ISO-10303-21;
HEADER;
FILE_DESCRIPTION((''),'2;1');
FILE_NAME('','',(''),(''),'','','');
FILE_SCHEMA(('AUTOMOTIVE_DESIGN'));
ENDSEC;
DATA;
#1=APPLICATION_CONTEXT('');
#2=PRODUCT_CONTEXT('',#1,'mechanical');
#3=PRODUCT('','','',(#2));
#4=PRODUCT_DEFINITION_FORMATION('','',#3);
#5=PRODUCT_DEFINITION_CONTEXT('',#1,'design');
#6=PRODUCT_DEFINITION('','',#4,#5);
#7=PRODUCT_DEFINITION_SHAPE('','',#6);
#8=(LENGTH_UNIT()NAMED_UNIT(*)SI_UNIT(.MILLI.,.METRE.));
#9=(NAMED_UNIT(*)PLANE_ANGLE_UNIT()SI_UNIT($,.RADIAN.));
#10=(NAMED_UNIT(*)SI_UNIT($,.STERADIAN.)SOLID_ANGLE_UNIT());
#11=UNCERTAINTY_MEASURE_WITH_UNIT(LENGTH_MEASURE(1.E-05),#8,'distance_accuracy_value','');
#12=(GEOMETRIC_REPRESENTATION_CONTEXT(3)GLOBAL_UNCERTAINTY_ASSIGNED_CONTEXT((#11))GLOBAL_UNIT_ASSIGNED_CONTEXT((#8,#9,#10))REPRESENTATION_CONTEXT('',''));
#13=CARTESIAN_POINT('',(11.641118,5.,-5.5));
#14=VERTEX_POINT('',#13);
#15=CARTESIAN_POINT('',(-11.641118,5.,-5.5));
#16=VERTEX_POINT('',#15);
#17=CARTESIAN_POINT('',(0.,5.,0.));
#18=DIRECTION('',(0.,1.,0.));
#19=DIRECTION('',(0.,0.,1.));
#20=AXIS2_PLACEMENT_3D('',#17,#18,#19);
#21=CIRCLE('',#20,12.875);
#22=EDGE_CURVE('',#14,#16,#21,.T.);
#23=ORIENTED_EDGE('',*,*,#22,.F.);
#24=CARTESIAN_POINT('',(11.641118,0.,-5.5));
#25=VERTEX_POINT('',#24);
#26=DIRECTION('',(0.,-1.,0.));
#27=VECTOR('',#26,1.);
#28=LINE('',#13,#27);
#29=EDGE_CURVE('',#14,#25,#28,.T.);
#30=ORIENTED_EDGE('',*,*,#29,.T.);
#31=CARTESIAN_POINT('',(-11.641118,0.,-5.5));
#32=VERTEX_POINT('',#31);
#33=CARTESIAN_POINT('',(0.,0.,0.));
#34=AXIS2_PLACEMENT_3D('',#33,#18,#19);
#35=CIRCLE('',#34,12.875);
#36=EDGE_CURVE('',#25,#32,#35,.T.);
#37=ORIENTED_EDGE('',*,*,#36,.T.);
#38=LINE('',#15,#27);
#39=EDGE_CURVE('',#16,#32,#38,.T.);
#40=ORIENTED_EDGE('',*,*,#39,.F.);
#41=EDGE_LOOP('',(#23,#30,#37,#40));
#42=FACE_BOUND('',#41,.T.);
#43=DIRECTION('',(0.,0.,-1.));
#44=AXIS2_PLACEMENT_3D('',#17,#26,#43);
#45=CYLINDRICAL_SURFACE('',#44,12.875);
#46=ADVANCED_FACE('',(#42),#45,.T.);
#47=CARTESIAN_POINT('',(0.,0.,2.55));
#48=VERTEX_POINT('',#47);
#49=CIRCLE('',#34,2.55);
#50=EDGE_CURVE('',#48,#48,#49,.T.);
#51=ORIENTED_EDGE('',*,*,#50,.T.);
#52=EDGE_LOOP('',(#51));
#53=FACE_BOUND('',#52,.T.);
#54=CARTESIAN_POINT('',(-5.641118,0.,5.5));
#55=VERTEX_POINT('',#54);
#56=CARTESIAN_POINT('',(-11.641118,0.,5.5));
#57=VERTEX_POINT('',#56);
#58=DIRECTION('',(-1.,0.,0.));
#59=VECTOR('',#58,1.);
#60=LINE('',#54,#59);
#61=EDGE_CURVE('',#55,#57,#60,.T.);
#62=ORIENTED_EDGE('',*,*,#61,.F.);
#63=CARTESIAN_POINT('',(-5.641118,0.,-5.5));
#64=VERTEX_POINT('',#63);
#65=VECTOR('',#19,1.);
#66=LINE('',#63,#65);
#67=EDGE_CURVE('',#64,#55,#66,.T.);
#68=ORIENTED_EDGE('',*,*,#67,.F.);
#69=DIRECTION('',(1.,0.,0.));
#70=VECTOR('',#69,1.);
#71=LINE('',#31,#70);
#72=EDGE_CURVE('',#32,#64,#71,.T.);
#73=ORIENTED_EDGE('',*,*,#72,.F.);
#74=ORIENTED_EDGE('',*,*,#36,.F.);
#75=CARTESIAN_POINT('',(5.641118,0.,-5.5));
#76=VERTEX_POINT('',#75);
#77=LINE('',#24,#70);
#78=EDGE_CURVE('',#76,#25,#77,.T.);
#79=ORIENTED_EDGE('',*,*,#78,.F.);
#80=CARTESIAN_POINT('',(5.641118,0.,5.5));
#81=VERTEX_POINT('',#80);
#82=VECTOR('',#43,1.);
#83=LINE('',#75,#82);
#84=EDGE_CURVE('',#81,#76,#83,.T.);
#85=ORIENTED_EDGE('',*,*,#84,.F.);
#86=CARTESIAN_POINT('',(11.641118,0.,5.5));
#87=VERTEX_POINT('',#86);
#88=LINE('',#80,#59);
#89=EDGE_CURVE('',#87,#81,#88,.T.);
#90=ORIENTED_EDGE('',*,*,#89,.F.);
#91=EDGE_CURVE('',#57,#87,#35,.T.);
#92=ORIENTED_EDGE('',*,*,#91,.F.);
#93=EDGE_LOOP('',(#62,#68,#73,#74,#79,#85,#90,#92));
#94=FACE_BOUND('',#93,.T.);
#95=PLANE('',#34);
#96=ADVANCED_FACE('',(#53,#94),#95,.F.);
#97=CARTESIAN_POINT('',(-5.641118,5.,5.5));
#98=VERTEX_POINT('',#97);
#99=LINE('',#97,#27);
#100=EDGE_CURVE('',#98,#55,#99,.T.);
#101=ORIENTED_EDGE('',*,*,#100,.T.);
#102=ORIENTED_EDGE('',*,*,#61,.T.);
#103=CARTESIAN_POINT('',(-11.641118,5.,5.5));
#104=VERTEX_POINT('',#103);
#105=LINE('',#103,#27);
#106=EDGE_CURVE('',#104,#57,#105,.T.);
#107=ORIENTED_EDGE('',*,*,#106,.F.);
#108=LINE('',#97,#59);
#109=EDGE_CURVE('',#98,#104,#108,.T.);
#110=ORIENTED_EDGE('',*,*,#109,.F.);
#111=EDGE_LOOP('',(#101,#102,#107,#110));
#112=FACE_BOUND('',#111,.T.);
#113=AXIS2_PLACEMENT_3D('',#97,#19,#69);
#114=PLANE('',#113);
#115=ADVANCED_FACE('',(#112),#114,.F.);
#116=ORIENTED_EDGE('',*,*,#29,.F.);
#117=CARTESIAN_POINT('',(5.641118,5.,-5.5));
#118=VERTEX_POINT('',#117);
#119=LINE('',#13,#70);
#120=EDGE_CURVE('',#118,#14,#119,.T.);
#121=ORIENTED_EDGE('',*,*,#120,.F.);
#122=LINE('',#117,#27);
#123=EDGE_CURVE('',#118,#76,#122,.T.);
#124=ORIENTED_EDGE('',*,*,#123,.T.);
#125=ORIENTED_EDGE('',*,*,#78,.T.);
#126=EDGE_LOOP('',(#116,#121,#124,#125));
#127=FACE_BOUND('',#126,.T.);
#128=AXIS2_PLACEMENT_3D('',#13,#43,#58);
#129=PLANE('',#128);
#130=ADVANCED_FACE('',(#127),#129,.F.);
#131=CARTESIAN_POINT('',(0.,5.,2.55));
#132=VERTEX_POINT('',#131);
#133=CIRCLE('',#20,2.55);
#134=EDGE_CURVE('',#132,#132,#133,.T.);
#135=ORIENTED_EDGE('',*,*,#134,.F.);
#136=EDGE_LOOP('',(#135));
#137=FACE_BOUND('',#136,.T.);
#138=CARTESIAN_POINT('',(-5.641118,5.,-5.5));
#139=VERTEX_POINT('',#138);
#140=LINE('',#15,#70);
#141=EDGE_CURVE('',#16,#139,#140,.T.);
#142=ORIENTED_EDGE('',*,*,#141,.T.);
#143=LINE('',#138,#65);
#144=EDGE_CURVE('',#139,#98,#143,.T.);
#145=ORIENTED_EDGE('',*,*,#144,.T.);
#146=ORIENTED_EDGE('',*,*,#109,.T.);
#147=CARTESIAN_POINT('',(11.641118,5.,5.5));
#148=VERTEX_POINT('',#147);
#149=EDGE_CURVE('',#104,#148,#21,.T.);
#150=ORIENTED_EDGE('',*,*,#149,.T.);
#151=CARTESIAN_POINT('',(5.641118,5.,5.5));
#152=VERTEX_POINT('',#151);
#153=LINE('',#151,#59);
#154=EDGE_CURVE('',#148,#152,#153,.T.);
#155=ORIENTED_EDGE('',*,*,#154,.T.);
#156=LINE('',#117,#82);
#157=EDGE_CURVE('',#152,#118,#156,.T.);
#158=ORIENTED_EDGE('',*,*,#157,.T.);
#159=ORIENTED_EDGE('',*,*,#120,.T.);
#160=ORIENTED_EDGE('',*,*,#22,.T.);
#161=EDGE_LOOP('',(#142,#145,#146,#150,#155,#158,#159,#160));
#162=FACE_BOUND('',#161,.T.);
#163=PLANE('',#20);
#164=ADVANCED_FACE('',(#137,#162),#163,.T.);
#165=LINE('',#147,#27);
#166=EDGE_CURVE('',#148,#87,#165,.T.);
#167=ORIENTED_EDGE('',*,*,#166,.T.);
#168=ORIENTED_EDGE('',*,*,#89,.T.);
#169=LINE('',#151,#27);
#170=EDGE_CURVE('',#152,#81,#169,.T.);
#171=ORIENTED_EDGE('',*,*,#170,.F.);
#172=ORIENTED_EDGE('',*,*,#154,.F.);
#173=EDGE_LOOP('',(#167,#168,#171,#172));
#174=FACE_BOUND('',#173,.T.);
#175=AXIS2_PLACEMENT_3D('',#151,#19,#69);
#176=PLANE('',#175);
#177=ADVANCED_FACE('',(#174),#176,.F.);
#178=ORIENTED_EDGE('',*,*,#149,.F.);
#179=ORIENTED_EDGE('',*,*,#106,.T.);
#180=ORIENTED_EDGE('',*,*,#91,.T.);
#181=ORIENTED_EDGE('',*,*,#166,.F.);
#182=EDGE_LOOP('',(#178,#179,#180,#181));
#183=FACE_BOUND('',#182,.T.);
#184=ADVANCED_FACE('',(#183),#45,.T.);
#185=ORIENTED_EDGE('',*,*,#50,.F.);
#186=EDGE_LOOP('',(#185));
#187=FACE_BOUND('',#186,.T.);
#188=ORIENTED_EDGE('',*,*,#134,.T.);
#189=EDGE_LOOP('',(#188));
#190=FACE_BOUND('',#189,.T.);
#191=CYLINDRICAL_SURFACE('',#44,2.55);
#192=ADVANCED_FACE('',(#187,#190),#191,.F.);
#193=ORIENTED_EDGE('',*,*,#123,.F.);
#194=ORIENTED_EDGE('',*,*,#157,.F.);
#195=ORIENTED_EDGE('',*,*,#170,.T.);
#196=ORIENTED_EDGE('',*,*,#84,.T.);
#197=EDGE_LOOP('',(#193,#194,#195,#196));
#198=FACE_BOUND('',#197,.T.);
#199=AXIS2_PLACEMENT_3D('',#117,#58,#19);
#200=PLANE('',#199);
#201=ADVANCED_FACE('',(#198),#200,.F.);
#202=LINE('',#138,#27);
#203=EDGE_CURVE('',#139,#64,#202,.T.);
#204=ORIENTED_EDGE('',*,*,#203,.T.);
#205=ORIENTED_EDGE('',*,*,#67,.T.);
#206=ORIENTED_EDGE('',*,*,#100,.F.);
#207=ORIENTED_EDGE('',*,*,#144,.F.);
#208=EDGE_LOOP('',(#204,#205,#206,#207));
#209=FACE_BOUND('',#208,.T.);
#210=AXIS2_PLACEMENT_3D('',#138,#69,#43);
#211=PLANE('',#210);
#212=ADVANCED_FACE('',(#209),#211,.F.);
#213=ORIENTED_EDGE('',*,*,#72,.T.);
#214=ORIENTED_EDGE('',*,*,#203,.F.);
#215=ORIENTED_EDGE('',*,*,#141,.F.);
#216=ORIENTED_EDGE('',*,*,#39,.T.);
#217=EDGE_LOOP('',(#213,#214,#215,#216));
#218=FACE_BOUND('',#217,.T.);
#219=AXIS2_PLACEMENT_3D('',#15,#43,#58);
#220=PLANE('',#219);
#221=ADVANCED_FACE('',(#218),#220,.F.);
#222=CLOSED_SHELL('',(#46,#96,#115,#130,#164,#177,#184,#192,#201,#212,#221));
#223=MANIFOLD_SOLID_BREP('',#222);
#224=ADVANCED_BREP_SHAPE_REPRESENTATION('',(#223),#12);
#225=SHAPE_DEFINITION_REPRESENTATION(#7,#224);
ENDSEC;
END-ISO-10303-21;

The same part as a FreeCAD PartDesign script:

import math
import FreeCAD as App
import Part
import Sketcher
Q = App.Units.Quantity

doc = App.newDocument("Part")
body = doc.addObject("PartDesign::Body", "Body")

# Sketch on XZ plane
sketch1 = doc.addObject("Sketcher::SketchObject", "Sketch")
body.addObject(sketch1)
sketch1.AttachmentSupport = (doc.XZ_Plane, [""])
sketch1.MapMode = "FlatFace"
sketch1.addGeometry(Part.LineSegment(App.Vector(-11.641118, -5.5, 0), App.Vector(-5.641118, -5.5, 0)), False)
sketch1.addGeometry(Part.LineSegment(App.Vector(-5.641118, -5.5, 0), App.Vector(-5.641118, 5.5, 0)), False)
sketch1.addGeometry(Part.LineSegment(App.Vector(-5.641118, 5.5, 0), App.Vector(-11.641118, 5.5, 0)), False)
sketch1.addGeometry(Part.ArcOfCircle(Part.Circle(App.Vector(0, 0, 0), App.Vector(0, 0, 1), 12.875), math.radians(25.289012), math.radians(154.710988)), False)
sketch1.addGeometry(Part.LineSegment(App.Vector(11.641118, 5.5, 0), App.Vector(5.641118, 5.5, 0)), False)
sketch1.addGeometry(Part.LineSegment(App.Vector(5.641118, 5.5, 0), App.Vector(5.641118, -5.5, 0)), False)
sketch1.addGeometry(Part.LineSegment(App.Vector(5.641118, -5.5, 0), App.Vector(11.641118, -5.5, 0)), False)
sketch1.addGeometry(Part.ArcOfCircle(Part.Circle(App.Vector(0, 0, 0), App.Vector(0, 0, 1), 12.875), math.radians(-154.710988), math.radians(-25.289012)), False)
sketch1.addGeometry(Part.Circle(App.Vector(0, 0, 0), App.Vector(0, 0, 1), 2.55), False)
sketch1.addConstraint(Sketcher.Constraint("Coincident", 0, 2, 1, 1))
sketch1.addConstraint(Sketcher.Constraint("Coincident", 1, 2, 2, 1))
sketch1.addConstraint(Sketcher.Constraint("Coincident", 2, 2, 3, 2))
sketch1.addConstraint(Sketcher.Constraint("Coincident", 3, 1, 4, 1))
sketch1.addConstraint(Sketcher.Constraint("Coincident", 4, 2, 5, 1))
sketch1.addConstraint(Sketcher.Constraint("Coincident", 5, 2, 6, 1))
sketch1.addConstraint(Sketcher.Constraint("Coincident", 6, 2, 7, 2))
sketch1.addConstraint(Sketcher.Constraint("Coincident", 7, 1, 0, 1))
sketch1.addConstraint(Sketcher.Constraint("Horizontal", 0))
sketch1.addConstraint(Sketcher.Constraint("Vertical", 1))
sketch1.addConstraint(Sketcher.Constraint("Horizontal", 2))
sketch1.addConstraint(Sketcher.Constraint("Horizontal", 4))
sketch1.addConstraint(Sketcher.Constraint("Vertical", 5))
sketch1.addConstraint(Sketcher.Constraint("Horizontal", 6))
sketch1.addConstraint(Sketcher.Constraint("Coincident", 3, 3, -1, 1))
sketch1.addConstraint(Sketcher.Constraint("Coincident", 7, 3, -1, 1))
sketch1.addConstraint(Sketcher.Constraint("Coincident", 8, 3, -1, 1))
sketch1.addConstraint(Sketcher.Constraint("Equal", 3, 7))
sketch1.addConstraint(Sketcher.Constraint("Symmetric", 0, 2, 4, 2, -1, 1))
sketch1.addConstraint(Sketcher.Constraint("Horizontal", 2, 2, 3, 1))
sketch1.addConstraint(Sketcher.Constraint("Horizontal", 0, 2, 5, 2))
sketch1.addConstraint(Sketcher.Constraint("Diameter", 8, Q("5.1 mm")))
sketch1.addConstraint(Sketcher.Constraint("DistanceX", 0, 1, 0, 2, Q("6 mm")))
sketch1.addConstraint(Sketcher.Constraint("DistanceY", 1, 1, 1, 2, Q("11 mm")))
sketch1.addConstraint(Sketcher.Constraint("Radius", 3, Q("12.875 mm")))
pad1 = doc.addObject("PartDesign::Pad", "Pad")
body.addObject(pad1)
pad1.Profile = sketch1
pad1.Length = 5
pad1.Reversed = True

doc.recompute()
